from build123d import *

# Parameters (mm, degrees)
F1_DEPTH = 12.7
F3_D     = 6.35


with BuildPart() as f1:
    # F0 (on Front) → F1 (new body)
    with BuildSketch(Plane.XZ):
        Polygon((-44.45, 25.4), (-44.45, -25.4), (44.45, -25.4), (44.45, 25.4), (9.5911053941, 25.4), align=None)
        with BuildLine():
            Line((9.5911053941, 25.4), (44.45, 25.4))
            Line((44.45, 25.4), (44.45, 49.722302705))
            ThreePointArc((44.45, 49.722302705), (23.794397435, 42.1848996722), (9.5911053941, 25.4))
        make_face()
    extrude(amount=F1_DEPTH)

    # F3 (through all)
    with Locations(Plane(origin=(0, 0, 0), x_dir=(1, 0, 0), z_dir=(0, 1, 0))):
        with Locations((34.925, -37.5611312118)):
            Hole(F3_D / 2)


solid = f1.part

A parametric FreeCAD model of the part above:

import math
import FreeCAD as App
import Part
import Sketcher

V = App.Vector
Q = App.Units.Quantity

doc = App.newDocument("Part")
params = doc.addObject("Spreadsheet::Sheet", "Params")
for row, (alias, value) in enumerate([
    ("sketch1_height", "2 in"),
    ("sketch1_width", "3.5 in"),
    ("pad1_length", "0.5 in"),
    ("sketch2_diameter", "0.25 in"),
    ("hole_diameter", "0.25 in"),
], start=1):
    params.set(f"A{row}", alias)
    params.set(f"B{row}", "=" + value)
    params.setAlias(f"B{row}", alias)

body = doc.addObject("PartDesign::Body", "Body")

sketch1 = body.newObject("Sketcher::SketchObject", "Sketch")
sketch1.AttachmentSupport = (doc.getObject("XZ_Plane"), [""])
sketch1.MapMode = "FlatFace"
sketch1.addGeometry([
    Part.LineSegment(V(-44, 25, 0), V(-44, -25, 0)),
    Part.LineSegment(V(-44, -25, 0), V(44, -25, 0)),
    Part.LineSegment(V(44, -25, 0), V(44, 50, 0)),
    Part.ArcOfCircle(Part.Circle(V(48, 7, 0), V(0, 0, 1), 43), math.radians(95), math.radians(155)),
    Part.LineSegment(V(10, 25, 0), V(-44, 25, 0)),
], False)
sketch1.addConstraint([
    Sketcher.Constraint("Coincident", 0, 2, 1, 1),
    Sketcher.Constraint("Coincident", 1, 2, 2, 1),
    Sketcher.Constraint("Coincident", 2, 2, 3, 1),
    Sketcher.Constraint("Coincident", 3, 2, 4, 1),
    Sketcher.Constraint("Coincident", 4, 2, 0, 1),
    Sketcher.Constraint("Vertical", 0),
    Sketcher.Constraint("Horizontal", 1),
    Sketcher.Constraint("Vertical", 2),
    Sketcher.Constraint("Horizontal", 4),
    Sketcher.Constraint("Symmetric", 1, 2, 4, 2, -1, 1),
    Sketcher.Constraint("DistanceY", 0, 2, 0, 1, Q("2 in")),
    Sketcher.Constraint("DistanceX", 1, 1, 1, 2, Q("3.5 in")),
    Sketcher.Constraint("Radius", 3, Q("42.875642 mm")),
    Sketcher.Constraint("DistanceX", 3, 2, 3, 3, Q("38.7374 mm")),
    Sketcher.Constraint("DistanceX", 4, 2, 4, 1, Q("54.041105 mm")),
])
sketch1.setExpression("Constraints[10]", "Params.sketch1_height")
sketch1.setExpression("Constraints[11]", "Params.sketch1_width")
pad1 = body.newObject("PartDesign::Pad", "Pad")
pad1.Profile = sketch1
pad1.setExpression("Length", "Params.pad1_length")

sketch2 = body.newObject("Sketcher::SketchObject", "Sketch001")
sketch2.AttachmentSupport = (doc.getObject("XZ_Plane"), [""])
sketch2.MapMode = "FlatFace"
sketch2.addGeometry(Part.Circle(V(34.9, 37.6, 0), V(0, 0, 1), 3.2), False)
sketch2.addConstraint([
    Sketcher.Constraint("Diameter", 0, Q("0.25 in")),
    Sketcher.Constraint("DistanceX", -1, 1, 0, 3, Q("1.375 in")),
    Sketcher.Constraint("DistanceY", -1, 1, 0, 3, Q("37.561131 mm")),
])
sketch2.setExpression("Constraints[0]", "Params.sketch2_diameter")
doc.recompute()
hole = body.newObject("PartDesign::Hole", "Hole")
hole.Profile = sketch2
hole.ThreadType = "None"
hole.setExpression("Diameter", "Params.hole_diameter")
hole.DepthType = "ThroughAll"
hole.Reversed = True

doc.recompute()
